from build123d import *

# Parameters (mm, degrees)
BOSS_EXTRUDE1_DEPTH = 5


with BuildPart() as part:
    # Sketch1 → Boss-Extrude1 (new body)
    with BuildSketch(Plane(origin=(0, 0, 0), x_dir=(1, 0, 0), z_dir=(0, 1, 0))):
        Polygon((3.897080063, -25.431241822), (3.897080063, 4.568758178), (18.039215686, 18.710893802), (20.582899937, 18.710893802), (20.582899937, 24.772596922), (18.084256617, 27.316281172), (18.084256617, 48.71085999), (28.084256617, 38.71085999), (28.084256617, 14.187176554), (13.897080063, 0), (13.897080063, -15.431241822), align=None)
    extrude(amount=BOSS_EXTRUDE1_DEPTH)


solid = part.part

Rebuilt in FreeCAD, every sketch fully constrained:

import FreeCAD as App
import Part
import Sketcher
Q = App.Units.Quantity

doc = App.newDocument("Part")
params = doc.addObject("Spreadsheet::Sheet", "Params")
for row, (alias, value) in enumerate([
    ("sketch1_height", "30 mm"),
    ("sketch1_length", "20 mm"),
    ("pad1_length", "5 mm"),
], start=1):
    params.set(f"A{row}", alias)
    params.set(f"B{row}", "=" + value)
    params.setAlias(f"B{row}", alias)

body = doc.addObject("PartDesign::Body", "Body")

sketch1 = doc.addObject("Sketcher::SketchObject", "Sketch")
body.addObject(sketch1)
sketch1.AttachmentSupport = (doc.XZ_Plane, [""])
sketch1.MapMode = "FlatFace"
sketch1.addGeometry([
    Part.LineSegment(App.Vector(3.9, -4.6, 0), App.Vector(3.9, 25.4, 0)),
    Part.LineSegment(App.Vector(3.9, 25.4, 0), App.Vector(13.9, 15.4, 0)),
    Part.LineSegment(App.Vector(13.9, 15.4, 0), App.Vector(13.9, 0, 0)),
    Part.LineSegment(App.Vector(13.9, 0, 0), App.Vector(28.1, -14.2, 0)),
    Part.LineSegment(App.Vector(28.1, -14.2, 0), App.Vector(28.1, -38.7, 0)),
    Part.LineSegment(App.Vector(28.1, -38.7, 0), App.Vector(18.1, -48.7, 0)),
    Part.LineSegment(App.Vector(18.1, -48.7, 0), App.Vector(18.1, -27.3, 0)),
    Part.LineSegment(App.Vector(18.1, -27.3, 0), App.Vector(20.6, -24.8, 0)),
    Part.LineSegment(App.Vector(20.6, -24.8, 0), App.Vector(20.6, -18.7, 0)),
    Part.LineSegment(App.Vector(20.6, -18.7, 0), App.Vector(18, -18.7, 0)),
    Part.LineSegment(App.Vector(18, -18.7, 0), App.Vector(3.9, -4.6, 0)),
], False)
sketch1.addConstraint([
    Sketcher.Constraint("Coincident", 0, 2, 1, 1),
    Sketcher.Constraint("Coincident", 1, 2, 2, 1),
    Sketcher.Constraint("Coincident", 2, 2, 3, 1),
    Sketcher.Constraint("Coincident", 3, 2, 4, 1),
    Sketcher.Constraint("Coincident", 4, 2, 5, 1),
    Sketcher.Constraint("Coincident", 5, 2, 6, 1),
    Sketcher.Constraint("Coincident", 6, 2, 7, 1),
    Sketcher.Constraint("Coincident", 7, 2, 8, 1),
    Sketcher.Constraint("Coincident", 8, 2, 9, 1),
    Sketcher.Constraint("Coincident", 9, 2, 10, 1),
    Sketcher.Constraint("Coincident", 10, 2, 0, 1),
    Sketcher.Constraint("Vertical", 0),
    Sketcher.Constraint("Vertical", 2),
    Sketcher.Constraint("Vertical", 4),
    Sketcher.Constraint("Vertical", 6),
    Sketcher.Constraint("Vertical", 8),
    Sketcher.Constraint("Horizontal", 9),
    Sketcher.Constraint("PointOnObject", 2, 2, -1),
    Sketcher.Constraint("Parallel", 1, 3),
    Sketcher.Constraint("Perpendicular", 3, 5),
    Sketcher.Constraint("Perpendicular", 5, 10),
    Sketcher.Constraint("Equal", 1, 5),
    Sketcher.Constraint("DistanceY", 0, 1, 0, 2, 30.0),
    Sketcher.Constraint("Angle", 1, Q("-45 deg")),
    Sketcher.Constraint("Distance", 10, 20.0),
    Sketcher.Constraint("DistanceX", 0, 2, 1, 2, 10.0),
    Sketcher.Constraint("DistanceY", 2, 2, 2, 1, 15.431242),
    Sketcher.Constraint("DistanceY", 6, 1, 6, 2, 21.394579),
    Sketcher.Constraint("DistanceX", -1, 1, 7, 2, 20.5829),
    Sketcher.Constraint("DistanceY", 4, 2, 1, 2, 54.142102),
    Sketcher.Constraint("DistanceX", 9, 2, 9, 1, 2.543684),
    Sketcher.Constraint("DistanceY", 4, 2, 4, 1, 24.523683),
    Sketcher.Constraint("DistanceY", 8, 1, 8, 2, 6.061703),
])
sketch1.setExpression("Constraints[22]", "Params.sketch1_height")
sketch1.setExpression("Constraints[24]", "Params.sketch1_length")
pad1 = doc.addObject("PartDesign::Pad", "Pad")
body.addObject(pad1)
pad1.Profile = sketch1
pad1.setExpression("Length", "Params.pad1_length")
pad1.Reversed = True

doc.recompute()
